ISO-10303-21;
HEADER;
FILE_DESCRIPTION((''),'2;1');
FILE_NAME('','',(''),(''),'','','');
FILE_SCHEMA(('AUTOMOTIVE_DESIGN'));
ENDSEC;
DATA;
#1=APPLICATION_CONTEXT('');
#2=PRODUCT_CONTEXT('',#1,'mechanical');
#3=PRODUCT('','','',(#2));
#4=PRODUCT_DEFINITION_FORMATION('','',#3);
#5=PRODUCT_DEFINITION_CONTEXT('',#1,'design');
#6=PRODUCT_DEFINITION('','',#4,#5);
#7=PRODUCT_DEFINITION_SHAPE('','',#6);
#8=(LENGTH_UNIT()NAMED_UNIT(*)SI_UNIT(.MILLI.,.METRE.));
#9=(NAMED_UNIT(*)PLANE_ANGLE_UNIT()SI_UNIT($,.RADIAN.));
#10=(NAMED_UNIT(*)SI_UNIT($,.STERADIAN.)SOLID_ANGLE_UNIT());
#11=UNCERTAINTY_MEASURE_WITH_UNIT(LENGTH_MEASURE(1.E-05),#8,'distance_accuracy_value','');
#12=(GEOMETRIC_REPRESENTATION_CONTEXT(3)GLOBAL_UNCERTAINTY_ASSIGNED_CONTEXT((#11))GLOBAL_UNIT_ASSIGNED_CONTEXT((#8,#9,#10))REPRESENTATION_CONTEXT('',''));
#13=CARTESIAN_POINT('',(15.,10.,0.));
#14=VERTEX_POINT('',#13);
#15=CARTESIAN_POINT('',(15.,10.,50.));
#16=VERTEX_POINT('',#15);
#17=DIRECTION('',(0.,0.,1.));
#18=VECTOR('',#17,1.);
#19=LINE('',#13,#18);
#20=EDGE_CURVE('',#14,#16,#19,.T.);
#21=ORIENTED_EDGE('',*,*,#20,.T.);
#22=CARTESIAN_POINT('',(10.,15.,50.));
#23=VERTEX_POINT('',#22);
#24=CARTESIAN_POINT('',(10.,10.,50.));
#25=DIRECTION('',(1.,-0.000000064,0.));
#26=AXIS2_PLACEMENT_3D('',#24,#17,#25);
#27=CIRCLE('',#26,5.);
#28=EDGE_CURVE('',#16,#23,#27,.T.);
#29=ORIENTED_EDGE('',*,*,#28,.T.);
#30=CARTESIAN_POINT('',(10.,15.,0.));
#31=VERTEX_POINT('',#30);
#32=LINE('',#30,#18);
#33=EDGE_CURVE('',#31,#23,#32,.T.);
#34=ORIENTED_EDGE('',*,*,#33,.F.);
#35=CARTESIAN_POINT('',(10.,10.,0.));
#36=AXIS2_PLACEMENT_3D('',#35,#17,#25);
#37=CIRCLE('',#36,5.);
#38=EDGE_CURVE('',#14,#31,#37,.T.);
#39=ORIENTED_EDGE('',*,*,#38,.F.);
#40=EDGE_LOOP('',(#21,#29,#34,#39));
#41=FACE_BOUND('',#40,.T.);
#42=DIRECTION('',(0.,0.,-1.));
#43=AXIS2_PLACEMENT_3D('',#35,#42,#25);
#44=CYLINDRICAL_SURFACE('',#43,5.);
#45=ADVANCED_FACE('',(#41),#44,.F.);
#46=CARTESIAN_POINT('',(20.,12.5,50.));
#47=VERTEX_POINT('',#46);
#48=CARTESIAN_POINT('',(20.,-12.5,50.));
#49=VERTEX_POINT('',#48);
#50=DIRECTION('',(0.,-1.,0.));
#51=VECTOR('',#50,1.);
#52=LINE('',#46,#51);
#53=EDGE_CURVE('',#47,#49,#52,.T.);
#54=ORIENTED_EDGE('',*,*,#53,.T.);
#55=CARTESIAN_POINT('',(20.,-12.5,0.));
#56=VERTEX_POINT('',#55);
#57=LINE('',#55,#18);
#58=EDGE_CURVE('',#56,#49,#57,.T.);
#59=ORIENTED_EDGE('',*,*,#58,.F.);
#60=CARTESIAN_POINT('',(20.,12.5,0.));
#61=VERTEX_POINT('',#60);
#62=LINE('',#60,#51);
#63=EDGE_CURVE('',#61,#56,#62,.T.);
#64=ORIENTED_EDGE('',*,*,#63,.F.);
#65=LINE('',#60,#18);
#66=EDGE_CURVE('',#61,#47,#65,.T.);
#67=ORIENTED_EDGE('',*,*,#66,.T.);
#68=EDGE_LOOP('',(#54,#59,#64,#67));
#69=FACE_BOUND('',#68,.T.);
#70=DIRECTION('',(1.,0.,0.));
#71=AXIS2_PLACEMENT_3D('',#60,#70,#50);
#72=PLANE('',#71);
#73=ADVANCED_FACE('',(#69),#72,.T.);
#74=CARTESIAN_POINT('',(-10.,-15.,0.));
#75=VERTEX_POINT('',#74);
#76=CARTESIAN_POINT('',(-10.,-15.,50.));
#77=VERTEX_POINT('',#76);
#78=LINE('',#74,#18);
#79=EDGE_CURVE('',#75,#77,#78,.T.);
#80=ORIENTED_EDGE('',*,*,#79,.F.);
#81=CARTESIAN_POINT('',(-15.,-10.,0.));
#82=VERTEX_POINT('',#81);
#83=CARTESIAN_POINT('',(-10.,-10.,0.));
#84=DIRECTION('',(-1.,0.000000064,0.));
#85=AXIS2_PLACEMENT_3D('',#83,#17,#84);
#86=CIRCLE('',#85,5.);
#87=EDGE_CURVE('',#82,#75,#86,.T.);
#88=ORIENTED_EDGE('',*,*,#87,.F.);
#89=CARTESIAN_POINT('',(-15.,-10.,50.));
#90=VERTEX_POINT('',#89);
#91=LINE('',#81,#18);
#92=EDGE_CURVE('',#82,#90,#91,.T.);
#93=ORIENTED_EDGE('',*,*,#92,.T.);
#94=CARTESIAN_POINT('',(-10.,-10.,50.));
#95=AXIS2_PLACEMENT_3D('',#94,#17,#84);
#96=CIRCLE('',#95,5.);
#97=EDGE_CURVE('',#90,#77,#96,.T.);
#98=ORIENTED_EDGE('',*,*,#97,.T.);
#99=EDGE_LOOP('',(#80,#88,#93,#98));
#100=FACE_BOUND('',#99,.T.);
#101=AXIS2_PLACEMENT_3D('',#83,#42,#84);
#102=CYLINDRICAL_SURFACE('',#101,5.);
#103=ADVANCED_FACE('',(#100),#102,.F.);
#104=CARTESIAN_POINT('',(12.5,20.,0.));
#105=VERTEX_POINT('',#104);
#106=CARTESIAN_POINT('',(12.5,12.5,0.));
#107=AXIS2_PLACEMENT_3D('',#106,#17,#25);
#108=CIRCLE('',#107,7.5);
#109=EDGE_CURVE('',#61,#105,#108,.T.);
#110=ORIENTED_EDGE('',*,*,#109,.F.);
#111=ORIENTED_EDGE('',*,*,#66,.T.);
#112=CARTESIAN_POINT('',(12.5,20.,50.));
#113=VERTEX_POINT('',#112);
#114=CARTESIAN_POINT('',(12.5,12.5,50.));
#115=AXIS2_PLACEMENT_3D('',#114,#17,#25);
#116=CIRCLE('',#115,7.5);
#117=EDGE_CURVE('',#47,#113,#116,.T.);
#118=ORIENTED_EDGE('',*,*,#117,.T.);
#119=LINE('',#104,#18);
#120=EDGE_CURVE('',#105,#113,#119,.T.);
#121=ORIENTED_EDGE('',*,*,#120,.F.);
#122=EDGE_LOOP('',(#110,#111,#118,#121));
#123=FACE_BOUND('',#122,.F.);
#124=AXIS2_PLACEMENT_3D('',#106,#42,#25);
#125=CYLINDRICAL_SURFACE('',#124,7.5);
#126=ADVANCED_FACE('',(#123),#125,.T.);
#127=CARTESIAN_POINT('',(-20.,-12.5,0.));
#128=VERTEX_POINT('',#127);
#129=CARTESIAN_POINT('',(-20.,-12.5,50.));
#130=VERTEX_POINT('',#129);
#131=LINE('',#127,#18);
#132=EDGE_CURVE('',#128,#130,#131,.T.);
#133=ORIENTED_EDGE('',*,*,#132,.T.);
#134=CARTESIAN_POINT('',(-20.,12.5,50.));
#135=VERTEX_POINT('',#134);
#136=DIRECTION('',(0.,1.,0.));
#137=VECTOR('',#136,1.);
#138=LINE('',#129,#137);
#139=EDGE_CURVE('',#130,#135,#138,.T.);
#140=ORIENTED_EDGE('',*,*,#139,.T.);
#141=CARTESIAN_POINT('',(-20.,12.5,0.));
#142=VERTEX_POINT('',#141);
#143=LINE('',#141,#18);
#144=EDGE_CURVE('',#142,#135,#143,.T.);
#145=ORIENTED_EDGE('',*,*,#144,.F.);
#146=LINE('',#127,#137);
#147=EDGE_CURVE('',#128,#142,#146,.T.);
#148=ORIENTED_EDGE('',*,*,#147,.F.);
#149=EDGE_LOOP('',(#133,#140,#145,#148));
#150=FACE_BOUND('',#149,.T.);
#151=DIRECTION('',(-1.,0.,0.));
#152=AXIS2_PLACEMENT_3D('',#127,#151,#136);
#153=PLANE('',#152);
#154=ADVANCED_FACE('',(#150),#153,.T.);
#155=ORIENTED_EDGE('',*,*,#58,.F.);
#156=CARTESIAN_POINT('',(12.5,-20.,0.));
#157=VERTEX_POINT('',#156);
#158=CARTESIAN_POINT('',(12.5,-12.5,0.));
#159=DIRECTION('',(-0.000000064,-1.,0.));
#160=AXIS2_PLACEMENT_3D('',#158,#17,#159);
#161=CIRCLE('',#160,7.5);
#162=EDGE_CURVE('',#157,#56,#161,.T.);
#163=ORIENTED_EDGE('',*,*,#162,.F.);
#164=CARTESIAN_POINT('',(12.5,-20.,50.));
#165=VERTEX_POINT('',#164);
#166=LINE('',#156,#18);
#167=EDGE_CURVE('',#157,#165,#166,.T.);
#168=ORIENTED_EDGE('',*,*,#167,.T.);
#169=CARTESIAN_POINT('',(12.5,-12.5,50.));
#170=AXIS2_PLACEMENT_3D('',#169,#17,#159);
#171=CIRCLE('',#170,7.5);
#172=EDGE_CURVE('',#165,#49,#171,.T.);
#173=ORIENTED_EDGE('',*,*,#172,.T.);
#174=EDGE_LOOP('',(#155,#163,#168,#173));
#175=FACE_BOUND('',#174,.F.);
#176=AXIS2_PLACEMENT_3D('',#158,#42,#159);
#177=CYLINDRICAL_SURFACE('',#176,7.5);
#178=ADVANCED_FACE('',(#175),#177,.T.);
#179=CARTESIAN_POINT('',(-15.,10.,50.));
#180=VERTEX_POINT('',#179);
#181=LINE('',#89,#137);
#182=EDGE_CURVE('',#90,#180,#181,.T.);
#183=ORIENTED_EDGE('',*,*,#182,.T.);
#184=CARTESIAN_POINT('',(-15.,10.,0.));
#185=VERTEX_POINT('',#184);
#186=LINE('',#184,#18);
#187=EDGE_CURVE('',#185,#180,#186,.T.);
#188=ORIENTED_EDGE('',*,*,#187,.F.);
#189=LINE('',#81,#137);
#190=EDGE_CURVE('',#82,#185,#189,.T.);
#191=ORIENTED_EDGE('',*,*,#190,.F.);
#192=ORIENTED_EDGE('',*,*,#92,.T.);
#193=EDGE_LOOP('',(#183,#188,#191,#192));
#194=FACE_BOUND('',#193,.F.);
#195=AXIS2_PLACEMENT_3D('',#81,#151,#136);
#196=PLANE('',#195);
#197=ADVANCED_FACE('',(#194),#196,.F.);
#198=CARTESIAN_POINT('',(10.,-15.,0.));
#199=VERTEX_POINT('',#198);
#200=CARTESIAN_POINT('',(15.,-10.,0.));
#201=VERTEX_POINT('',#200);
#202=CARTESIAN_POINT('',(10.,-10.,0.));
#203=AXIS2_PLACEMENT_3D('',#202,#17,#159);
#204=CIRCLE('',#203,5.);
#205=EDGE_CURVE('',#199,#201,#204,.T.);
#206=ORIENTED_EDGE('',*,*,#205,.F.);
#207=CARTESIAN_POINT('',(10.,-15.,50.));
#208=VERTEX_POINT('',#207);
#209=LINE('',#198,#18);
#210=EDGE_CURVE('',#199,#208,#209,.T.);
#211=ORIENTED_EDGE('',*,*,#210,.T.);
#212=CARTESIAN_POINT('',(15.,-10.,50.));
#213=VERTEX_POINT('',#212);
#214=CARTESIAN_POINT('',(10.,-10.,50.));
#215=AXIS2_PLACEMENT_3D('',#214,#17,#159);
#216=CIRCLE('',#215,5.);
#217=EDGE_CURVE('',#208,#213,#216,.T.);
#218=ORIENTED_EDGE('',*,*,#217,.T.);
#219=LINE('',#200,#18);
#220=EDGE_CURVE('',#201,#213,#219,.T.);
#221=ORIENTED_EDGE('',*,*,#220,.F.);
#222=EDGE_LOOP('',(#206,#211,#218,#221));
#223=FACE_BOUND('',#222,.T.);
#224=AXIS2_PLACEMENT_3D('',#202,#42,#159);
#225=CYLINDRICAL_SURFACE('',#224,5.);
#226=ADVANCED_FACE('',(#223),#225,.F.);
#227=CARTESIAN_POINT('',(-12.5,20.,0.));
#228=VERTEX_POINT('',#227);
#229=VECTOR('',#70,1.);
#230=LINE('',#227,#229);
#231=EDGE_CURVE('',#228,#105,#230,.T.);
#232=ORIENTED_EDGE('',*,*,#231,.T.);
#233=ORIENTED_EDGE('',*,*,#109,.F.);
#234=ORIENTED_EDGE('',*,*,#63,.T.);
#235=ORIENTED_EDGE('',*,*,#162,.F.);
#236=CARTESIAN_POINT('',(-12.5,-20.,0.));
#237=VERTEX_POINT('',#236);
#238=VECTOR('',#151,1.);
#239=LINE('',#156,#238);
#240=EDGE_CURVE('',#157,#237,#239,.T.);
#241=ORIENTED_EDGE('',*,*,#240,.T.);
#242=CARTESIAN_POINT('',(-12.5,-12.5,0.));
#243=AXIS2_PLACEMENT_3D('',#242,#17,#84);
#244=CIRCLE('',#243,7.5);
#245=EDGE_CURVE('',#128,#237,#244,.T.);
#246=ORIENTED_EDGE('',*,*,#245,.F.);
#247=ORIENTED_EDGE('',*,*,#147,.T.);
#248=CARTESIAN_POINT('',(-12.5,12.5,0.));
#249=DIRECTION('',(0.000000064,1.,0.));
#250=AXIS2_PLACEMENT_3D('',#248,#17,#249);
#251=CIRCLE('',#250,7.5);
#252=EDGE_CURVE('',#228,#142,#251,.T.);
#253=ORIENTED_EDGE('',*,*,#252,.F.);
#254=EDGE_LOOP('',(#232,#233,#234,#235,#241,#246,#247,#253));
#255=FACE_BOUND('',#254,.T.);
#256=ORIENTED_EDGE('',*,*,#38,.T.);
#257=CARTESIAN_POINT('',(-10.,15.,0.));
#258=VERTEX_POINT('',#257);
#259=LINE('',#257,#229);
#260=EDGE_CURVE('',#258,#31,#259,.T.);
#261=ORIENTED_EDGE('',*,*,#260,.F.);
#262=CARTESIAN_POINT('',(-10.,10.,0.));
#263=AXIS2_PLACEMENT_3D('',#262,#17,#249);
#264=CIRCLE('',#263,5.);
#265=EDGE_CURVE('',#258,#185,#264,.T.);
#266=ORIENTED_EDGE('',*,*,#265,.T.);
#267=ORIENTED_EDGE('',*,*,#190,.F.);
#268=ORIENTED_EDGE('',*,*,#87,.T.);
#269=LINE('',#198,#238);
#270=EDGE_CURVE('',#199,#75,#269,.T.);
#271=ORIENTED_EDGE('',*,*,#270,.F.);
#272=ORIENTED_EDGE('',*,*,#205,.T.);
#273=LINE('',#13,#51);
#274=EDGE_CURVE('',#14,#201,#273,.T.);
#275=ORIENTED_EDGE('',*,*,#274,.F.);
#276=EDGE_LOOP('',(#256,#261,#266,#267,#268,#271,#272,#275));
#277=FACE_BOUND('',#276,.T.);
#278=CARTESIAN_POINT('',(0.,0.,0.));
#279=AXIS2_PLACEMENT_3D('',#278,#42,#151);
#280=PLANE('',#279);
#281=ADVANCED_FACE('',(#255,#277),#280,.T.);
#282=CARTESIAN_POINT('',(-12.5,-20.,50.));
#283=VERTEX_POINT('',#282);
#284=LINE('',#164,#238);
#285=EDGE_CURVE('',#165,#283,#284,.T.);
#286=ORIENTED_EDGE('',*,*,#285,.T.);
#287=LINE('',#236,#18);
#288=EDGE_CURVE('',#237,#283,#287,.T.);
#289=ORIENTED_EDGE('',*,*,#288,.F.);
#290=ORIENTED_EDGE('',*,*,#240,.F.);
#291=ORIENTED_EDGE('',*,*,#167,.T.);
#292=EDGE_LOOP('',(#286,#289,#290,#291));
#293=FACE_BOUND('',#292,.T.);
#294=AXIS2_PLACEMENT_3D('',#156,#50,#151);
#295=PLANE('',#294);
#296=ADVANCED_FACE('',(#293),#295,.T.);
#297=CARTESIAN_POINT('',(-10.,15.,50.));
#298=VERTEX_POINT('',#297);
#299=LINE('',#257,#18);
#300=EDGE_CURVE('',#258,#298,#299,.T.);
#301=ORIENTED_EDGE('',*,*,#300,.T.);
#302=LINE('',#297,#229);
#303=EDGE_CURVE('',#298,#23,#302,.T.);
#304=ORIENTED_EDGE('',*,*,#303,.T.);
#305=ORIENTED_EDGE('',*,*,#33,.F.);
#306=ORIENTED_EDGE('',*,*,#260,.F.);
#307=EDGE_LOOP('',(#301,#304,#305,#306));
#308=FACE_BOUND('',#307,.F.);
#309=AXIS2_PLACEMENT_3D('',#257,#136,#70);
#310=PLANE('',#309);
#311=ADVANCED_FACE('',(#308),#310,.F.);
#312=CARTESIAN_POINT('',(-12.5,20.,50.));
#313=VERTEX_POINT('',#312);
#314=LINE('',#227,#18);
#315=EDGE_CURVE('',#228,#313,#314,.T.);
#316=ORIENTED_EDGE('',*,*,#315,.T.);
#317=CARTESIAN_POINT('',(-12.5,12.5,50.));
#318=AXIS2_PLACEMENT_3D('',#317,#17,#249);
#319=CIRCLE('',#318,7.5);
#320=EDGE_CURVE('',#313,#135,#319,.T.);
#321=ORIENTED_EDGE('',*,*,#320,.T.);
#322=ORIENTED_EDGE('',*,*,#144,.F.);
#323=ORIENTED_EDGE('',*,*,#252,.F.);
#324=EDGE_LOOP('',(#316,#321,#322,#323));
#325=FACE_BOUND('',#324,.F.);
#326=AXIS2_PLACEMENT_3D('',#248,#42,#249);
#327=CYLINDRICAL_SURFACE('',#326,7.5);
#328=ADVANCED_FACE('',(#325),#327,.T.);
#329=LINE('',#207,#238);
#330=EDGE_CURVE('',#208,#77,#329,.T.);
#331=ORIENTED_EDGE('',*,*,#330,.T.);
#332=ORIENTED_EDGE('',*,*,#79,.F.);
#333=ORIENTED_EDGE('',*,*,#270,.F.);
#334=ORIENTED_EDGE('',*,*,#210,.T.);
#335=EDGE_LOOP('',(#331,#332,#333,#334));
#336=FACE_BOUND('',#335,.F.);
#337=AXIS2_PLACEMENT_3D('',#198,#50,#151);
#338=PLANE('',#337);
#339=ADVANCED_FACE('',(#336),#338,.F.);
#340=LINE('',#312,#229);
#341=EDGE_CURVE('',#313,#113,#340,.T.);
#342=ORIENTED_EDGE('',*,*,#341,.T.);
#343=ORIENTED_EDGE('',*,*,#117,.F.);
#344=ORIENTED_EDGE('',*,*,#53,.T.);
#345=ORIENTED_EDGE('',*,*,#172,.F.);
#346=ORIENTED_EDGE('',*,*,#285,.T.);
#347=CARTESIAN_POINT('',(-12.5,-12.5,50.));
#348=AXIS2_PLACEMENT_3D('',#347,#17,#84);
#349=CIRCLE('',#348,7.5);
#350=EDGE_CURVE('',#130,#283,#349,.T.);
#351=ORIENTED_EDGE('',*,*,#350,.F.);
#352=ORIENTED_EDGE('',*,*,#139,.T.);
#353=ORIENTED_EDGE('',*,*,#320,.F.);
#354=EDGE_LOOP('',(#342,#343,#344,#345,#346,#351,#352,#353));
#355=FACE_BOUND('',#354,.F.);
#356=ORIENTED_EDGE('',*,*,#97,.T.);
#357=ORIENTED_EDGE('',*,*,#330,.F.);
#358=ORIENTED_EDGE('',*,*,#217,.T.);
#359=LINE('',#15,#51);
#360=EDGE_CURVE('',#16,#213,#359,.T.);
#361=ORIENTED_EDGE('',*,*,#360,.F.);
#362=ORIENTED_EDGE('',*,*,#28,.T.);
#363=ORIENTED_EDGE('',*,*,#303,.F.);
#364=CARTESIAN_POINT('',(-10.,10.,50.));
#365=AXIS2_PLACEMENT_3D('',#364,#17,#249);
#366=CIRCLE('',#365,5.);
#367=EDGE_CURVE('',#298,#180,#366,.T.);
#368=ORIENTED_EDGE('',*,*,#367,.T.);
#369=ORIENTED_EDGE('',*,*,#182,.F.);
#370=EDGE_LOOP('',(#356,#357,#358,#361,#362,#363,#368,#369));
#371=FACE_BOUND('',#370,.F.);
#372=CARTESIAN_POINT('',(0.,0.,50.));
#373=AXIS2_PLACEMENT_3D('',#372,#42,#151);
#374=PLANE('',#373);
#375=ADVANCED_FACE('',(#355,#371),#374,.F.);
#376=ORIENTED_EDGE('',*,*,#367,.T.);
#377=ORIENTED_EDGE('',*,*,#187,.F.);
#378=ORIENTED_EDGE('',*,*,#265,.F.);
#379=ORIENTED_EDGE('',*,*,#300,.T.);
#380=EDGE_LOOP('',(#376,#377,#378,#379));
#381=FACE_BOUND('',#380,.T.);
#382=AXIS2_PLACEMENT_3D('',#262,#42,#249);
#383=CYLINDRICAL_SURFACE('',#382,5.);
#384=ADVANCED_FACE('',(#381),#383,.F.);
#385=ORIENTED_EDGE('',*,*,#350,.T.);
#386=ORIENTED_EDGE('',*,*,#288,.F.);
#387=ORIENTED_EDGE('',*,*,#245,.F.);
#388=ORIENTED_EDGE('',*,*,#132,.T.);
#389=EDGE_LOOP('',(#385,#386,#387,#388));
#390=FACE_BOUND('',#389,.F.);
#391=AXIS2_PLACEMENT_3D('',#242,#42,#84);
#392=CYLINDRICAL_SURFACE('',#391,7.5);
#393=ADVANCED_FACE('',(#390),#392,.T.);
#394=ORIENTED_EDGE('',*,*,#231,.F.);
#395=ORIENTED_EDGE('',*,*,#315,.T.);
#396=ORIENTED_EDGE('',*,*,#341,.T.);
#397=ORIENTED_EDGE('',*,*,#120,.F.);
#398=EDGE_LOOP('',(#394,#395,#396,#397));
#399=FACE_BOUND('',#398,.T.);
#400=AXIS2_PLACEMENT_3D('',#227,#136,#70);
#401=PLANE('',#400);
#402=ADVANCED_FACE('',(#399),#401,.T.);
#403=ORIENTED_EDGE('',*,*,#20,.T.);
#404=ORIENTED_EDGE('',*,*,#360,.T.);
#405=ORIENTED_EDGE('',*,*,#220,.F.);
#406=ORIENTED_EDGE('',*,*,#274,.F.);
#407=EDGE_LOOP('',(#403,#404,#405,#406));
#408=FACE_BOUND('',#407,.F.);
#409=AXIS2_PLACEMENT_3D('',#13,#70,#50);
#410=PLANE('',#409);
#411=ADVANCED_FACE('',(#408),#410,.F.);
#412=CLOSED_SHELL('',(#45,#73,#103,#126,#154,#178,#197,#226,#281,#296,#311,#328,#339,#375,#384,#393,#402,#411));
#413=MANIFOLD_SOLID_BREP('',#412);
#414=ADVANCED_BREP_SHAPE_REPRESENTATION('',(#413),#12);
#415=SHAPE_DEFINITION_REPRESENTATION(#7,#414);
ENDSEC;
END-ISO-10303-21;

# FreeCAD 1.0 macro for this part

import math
import FreeCAD as App
import Part
import Sketcher

doc = App.newDocument("Part")
body = doc.addObject("PartDesign::Body", "Body")

sketch1 = body.newObject("Sketcher::SketchObject", "Sketch")
sketch1.AttachmentSupport = (doc.getObject("XY_Plane"), [""])
sketch1.MapMode = "FlatFace"
sketch1.addGeometry([
    Part.LineSegment(App.Vector(12.5, 20, 0), App.Vector(-12.5, 20, 0)),
    Part.ArcOfCircle(Part.Circle(App.Vector(-12.5, 12.5, 0), App.Vector(0, 0, 1), 7.5), math.radians(90), math.radians(180)),
    Part.LineSegment(App.Vector(-20, 12.5, 0), App.Vector(-20, -12.5, 0)),
    Part.ArcOfCircle(Part.Circle(App.Vector(-12.5, -12.5, 0), App.Vector(0, 0, 1), 7.5), math.radians(180), math.radians(270)),
    Part.LineSegment(App.Vector(-12.5, -20, 0), App.Vector(12.5, -20, 0)),
    Part.ArcOfCircle(Part.Circle(App.Vector(12.5, -12.5, 0), App.Vector(0, 0, 1), 7.5), math.radians(-90), math.radians(0)),
    Part.LineSegment(App.Vector(20, -12.5, 0), App.Vector(20, 12.5, 0)),
    Part.ArcOfCircle(Part.Circle(App.Vector(12.5, 12.5, 0), App.Vector(0, 0, 1), 7.5), math.radians(0), math.radians(90)),
    Part.LineSegment(App.Vector(-10, 15, 0), App.Vector(10, 15, 0)),
    Part.ArcOfCircle(Part.Circle(App.Vector(10, 10, 0), App.Vector(0, 0, 1), 5), math.radians(0), math.radians(90)),
    Part.LineSegment(App.Vector(15, 10, 0), App.Vector(15, -10, 0)),
    Part.ArcOfCircle(Part.Circle(App.Vector(10, -10, 0), App.Vector(0, 0, 1), 5), math.radians(-90), math.radians(0)),
    Part.LineSegment(App.Vector(10, -15, 0), App.Vector(-10, -15, 0)),
    Part.ArcOfCircle(Part.Circle(App.Vector(-10, -10, 0), App.Vector(0, 0, 1), 5), math.radians(180), math.radians(270)),
    Part.LineSegment(App.Vector(-15, -10, 0), App.Vector(-15, 10, 0)),
    Part.ArcOfCircle(Part.Circle(App.Vector(-10, 10, 0), App.Vector(0, 0, 1), 5), math.radians(90), math.radians(180)),
], False)
sketch1.addConstraint([
    Sketcher.Constraint("Tangent", 0, 2, 1, 1),
    Sketcher.Constraint("Tangent", 1, 2, 2, 1),
    Sketcher.Constraint("Tangent", 2, 2, 3, 1),
    Sketcher.Constraint("Tangent", 3, 2, 4, 1),
    Sketcher.Constraint("Tangent", 4, 2, 5, 1),
    Sketcher.Constraint("Tangent", 5, 2, 6, 1),
    Sketcher.Constraint("Tangent", 6, 2, 7, 1),
    Sketcher.Constraint("Tangent", 7, 2, 0, 1),
    Sketcher.Constraint("Tangent", 8, 2, 9, 2),
    Sketcher.Constraint("Tangent", 9, 1, 10, 1),
    Sketcher.Constraint("Tangent", 10, 2, 11, 2),
    Sketcher.Constraint("Tangent", 11, 1, 12, 1),
    Sketcher.Constraint("Tangent", 12, 2, 13, 2),
    Sketcher.Constraint("Tangent", 13, 1, 14, 1),
    Sketcher.Constraint("Tangent", 14, 2, 15, 2),
    Sketcher.Constraint("Tangent", 15, 1, 8, 1),
    Sketcher.Constraint("Horizontal", 0),
    Sketcher.Constraint("Vertical", 2),
    Sketcher.Constraint("Horizontal", 4),
    Sketcher.Constraint("Vertical", 6),
    Sketcher.Constraint("Horizontal", 8),
    Sketcher.Constraint("Vertical", 10),
    Sketcher.Constraint("Horizontal", 12),
    Sketcher.Constraint("Vertical", 14),
    Sketcher.Constraint("Equal", 1, 3),
    Sketcher.Constraint("Equal", 3, 5),
    Sketcher.Constraint("Equal", 5, 7),
    Sketcher.Constraint("Equal", 9, 11),
    Sketcher.Constraint("Equal", 11, 13),
    Sketcher.Constraint("Equal", 13, 15),
    Sketcher.Constraint("Symmetric", 1, 3, 5, 3, -1, 1),
    Sketcher.Constraint("Symmetric", 9, 3, 13, 3, -1, 1),
    Sketcher.Constraint("Equal", 4, 2),
    Sketcher.Constraint("Equal", 12, 10),
    Sketcher.Constraint("Radius", 9, 5.0),
    Sketcher.Constraint("Radius", 1, 7.5),
    Sketcher.Constraint("DistanceX", 0, 2, 0, 1, 25.0),
    Sketcher.Constraint("DistanceX", 8, 1, 8, 2, 20.0),
])
pad1 = body.newObject("PartDesign::Pad", "Pad")
pad1.Profile = sketch1
pad1.Length = 50

doc.recompute()
